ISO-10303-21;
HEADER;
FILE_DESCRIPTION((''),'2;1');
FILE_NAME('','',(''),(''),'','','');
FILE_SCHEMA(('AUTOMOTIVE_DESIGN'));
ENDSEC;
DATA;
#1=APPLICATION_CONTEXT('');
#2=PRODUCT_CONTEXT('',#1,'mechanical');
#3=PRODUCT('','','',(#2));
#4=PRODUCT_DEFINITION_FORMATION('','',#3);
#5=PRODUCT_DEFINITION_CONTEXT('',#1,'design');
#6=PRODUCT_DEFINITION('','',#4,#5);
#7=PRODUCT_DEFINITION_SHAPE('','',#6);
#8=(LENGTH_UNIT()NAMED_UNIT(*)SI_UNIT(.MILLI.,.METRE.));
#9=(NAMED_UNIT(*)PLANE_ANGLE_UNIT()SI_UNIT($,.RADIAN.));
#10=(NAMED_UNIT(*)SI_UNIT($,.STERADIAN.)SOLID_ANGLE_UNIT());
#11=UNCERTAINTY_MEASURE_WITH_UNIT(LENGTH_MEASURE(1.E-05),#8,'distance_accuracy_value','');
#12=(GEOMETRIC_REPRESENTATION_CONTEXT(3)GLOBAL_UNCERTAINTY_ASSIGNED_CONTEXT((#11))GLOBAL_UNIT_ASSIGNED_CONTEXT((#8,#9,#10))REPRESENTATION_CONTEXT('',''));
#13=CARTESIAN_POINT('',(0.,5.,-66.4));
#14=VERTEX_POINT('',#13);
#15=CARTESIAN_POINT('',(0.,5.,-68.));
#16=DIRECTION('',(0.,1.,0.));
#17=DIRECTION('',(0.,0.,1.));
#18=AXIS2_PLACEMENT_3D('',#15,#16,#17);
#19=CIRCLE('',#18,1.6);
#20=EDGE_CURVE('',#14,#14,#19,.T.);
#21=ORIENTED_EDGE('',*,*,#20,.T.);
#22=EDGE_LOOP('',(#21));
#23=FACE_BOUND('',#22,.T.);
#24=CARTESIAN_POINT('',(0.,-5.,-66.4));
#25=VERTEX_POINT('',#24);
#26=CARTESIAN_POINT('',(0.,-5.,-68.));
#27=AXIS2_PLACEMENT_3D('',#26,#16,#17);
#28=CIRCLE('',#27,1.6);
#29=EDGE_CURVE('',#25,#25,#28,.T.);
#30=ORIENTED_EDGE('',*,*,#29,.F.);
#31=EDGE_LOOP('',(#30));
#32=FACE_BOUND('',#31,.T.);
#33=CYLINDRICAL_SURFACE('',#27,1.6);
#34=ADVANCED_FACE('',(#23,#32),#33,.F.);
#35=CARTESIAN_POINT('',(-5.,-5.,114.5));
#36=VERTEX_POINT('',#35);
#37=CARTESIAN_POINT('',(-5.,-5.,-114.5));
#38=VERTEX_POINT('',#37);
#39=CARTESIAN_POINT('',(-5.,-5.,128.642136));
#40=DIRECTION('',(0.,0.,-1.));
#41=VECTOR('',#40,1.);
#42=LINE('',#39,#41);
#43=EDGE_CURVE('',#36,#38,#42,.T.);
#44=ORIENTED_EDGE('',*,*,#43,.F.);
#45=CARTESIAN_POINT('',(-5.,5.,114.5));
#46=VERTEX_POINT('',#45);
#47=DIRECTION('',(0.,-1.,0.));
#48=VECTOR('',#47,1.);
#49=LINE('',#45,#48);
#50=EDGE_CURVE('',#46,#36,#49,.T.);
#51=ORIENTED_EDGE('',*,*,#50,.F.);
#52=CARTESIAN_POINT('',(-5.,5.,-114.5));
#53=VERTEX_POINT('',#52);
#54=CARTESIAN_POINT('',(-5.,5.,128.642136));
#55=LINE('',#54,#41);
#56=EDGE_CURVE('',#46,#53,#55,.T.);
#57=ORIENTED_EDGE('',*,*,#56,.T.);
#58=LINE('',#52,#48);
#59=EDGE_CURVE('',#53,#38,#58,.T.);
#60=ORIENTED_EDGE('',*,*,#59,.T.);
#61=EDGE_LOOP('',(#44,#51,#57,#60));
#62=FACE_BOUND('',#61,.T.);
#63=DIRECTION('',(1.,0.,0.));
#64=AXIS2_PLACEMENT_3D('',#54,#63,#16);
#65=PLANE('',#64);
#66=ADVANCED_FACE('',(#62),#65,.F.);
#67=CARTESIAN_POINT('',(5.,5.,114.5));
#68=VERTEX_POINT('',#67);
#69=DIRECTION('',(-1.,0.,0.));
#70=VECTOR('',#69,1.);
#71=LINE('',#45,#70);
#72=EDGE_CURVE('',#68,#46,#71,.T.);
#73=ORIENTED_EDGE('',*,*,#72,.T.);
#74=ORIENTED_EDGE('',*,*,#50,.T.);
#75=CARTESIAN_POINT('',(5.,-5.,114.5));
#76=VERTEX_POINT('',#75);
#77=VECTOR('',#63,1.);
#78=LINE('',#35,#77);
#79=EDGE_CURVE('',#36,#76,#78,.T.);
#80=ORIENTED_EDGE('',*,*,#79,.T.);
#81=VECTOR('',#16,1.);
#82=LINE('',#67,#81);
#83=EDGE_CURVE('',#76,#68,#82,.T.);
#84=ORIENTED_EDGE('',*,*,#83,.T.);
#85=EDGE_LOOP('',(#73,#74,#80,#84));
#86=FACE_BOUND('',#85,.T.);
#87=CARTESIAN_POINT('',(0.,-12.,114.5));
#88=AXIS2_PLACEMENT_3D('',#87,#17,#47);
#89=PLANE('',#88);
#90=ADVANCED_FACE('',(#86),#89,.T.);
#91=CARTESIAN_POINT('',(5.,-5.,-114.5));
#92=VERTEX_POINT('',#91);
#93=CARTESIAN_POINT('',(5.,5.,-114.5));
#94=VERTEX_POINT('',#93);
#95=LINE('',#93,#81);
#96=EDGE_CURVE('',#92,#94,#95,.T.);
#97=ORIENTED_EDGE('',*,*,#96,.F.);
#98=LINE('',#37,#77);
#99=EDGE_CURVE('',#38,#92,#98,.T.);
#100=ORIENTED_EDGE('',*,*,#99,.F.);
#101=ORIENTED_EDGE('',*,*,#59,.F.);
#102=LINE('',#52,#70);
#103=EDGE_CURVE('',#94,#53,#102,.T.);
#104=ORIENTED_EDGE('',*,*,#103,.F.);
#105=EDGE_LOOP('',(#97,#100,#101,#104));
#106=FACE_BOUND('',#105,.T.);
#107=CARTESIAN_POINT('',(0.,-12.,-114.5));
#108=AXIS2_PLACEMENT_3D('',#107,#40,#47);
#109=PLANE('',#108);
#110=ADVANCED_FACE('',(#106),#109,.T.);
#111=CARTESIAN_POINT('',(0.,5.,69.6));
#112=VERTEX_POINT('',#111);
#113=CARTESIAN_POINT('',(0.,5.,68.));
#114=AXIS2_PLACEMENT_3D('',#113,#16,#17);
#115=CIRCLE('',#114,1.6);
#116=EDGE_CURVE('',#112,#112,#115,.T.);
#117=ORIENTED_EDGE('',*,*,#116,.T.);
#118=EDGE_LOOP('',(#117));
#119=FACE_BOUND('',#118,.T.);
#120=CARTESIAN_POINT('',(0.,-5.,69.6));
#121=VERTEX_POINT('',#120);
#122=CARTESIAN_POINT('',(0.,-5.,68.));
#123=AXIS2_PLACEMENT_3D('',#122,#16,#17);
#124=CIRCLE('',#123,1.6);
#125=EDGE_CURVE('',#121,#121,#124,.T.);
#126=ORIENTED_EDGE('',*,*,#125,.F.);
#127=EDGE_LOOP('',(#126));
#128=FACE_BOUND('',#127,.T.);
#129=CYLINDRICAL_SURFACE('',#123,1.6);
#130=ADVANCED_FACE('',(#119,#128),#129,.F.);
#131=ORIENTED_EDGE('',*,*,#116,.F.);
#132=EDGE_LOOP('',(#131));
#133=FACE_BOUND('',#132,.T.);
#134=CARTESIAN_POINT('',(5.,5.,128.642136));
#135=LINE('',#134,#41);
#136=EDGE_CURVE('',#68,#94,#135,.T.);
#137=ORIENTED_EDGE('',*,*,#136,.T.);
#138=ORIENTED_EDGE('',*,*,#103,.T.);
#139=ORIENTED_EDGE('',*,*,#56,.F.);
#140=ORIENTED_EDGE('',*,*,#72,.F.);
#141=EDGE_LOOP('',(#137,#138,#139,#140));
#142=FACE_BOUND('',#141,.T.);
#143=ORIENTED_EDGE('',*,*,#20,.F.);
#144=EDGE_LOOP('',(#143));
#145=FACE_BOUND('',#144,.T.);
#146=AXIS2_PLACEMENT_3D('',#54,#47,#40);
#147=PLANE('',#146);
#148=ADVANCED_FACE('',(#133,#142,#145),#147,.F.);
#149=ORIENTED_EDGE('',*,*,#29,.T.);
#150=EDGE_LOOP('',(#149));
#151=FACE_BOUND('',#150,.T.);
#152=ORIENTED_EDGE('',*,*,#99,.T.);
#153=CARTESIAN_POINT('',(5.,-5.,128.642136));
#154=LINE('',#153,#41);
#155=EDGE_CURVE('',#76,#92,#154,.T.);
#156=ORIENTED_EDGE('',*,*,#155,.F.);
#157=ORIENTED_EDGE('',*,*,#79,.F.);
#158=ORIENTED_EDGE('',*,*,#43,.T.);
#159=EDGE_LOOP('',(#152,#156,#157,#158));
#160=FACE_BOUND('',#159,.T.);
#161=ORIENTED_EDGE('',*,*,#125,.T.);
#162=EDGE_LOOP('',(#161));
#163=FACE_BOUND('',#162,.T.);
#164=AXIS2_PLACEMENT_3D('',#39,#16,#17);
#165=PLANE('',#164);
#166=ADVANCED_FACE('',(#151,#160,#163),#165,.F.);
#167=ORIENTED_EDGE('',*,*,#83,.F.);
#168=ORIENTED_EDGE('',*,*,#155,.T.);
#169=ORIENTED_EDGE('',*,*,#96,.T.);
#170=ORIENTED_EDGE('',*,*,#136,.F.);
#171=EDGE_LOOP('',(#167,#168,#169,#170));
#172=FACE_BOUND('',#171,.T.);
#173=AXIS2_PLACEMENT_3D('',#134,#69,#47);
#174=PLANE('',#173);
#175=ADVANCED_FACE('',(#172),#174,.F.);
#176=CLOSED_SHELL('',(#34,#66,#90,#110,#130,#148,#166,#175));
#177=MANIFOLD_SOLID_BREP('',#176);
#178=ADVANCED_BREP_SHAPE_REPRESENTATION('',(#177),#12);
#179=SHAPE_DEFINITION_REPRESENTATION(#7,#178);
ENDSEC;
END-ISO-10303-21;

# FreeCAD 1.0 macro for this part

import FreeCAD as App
import Part
import Sketcher


def add_polygon(sketch, points):
    """Adds a closed chain of lines whose ends are joined by coincident constraints."""
    first, n = sketch.GeometryCount, len(points)
    for a, b in zip(points, points[1:] + points[:1]):
        sketch.addGeometry(Part.LineSegment(App.Vector(*a, 0), App.Vector(*b, 0)), False)
    for i in range(n):
        sketch.addConstraint(Sketcher.Constraint("Coincident", first + i, 2, first + (i + 1) % n, 1))

doc = App.newDocument("Part")
body = doc.addObject("PartDesign::Body", "Body")

# Sketch on XY plane
sketch1 = doc.addObject("Sketcher::SketchObject", "Sketch")
body.addObject(sketch1)
sketch1.AttachmentSupport = (doc.XY_Plane, [""])
sketch1.MapMode = "FlatFace"
add_polygon(sketch1, [(-5, 5), (-5, -5), (5, -5), (5, 5)])  # lines 0-3
sketch1.addConstraint(Sketcher.Constraint("Vertical", 0))
sketch1.addConstraint(Sketcher.Constraint("Horizontal", 1))
sketch1.addConstraint(Sketcher.Constraint("Vertical", 2))
sketch1.addConstraint(Sketcher.Constraint("Horizontal", 3))
sketch1.addConstraint(Sketcher.Constraint("Symmetric", 0, 2, 2, 2, -1, 1))
sketch1.addConstraint(Sketcher.Constraint("Equal", 3, 0))
sketch1.addConstraint(Sketcher.Constraint("DistanceX", 1, 1, 1, 2, 10.0))
pad1 = doc.addObject("PartDesign::Pad", "Pad")
body.addObject(pad1)
pad1.Profile = sketch1
pad1.Type = "TwoLengths"
pad1.Length = 114.5
pad1.Length2 = 114.5

# Sketch on XZ plane
sketch2 = doc.addObject("Sketcher::SketchObject", "Sketch001")
body.addObject(sketch2)
sketch2.AttachmentSupport = (doc.XZ_Plane, [""])
sketch2.MapMode = "FlatFace"
sketch2.AttachmentOffset = App.Placement(App.Vector(0, 0, -5), App.Rotation())
sketch2.addGeometry(Part.Circle(App.Vector(0, -68, 0), App.Vector(0, 0, 1), 1.6), False)
sketch2.addGeometry(Part.Circle(App.Vector(0, 68, 0), App.Vector(0, 0, 1), 1.6), False)
sketch2.addConstraint(Sketcher.Constraint("Equal", 0, 1))
sketch2.addConstraint(Sketcher.Constraint("Symmetric", 0, 3, 1, 3, -1, 1))
sketch2.addConstraint(Sketcher.Constraint("PointOnObject", 0, 3, -2))
sketch2.addConstraint(Sketcher.Constraint("Diameter", 0, 3.2))
sketch2.addConstraint(Sketcher.Constraint("DistanceY", 0, 3, -1, 1, 68.0))
pocket1 = doc.addObject("PartDesign::Pocket", "Pocket")
body.addObject(pocket1)
pocket1.Profile = sketch2
pocket1.Type = "ThroughAll"
pocket1.Reversed = True

doc.recompute()
